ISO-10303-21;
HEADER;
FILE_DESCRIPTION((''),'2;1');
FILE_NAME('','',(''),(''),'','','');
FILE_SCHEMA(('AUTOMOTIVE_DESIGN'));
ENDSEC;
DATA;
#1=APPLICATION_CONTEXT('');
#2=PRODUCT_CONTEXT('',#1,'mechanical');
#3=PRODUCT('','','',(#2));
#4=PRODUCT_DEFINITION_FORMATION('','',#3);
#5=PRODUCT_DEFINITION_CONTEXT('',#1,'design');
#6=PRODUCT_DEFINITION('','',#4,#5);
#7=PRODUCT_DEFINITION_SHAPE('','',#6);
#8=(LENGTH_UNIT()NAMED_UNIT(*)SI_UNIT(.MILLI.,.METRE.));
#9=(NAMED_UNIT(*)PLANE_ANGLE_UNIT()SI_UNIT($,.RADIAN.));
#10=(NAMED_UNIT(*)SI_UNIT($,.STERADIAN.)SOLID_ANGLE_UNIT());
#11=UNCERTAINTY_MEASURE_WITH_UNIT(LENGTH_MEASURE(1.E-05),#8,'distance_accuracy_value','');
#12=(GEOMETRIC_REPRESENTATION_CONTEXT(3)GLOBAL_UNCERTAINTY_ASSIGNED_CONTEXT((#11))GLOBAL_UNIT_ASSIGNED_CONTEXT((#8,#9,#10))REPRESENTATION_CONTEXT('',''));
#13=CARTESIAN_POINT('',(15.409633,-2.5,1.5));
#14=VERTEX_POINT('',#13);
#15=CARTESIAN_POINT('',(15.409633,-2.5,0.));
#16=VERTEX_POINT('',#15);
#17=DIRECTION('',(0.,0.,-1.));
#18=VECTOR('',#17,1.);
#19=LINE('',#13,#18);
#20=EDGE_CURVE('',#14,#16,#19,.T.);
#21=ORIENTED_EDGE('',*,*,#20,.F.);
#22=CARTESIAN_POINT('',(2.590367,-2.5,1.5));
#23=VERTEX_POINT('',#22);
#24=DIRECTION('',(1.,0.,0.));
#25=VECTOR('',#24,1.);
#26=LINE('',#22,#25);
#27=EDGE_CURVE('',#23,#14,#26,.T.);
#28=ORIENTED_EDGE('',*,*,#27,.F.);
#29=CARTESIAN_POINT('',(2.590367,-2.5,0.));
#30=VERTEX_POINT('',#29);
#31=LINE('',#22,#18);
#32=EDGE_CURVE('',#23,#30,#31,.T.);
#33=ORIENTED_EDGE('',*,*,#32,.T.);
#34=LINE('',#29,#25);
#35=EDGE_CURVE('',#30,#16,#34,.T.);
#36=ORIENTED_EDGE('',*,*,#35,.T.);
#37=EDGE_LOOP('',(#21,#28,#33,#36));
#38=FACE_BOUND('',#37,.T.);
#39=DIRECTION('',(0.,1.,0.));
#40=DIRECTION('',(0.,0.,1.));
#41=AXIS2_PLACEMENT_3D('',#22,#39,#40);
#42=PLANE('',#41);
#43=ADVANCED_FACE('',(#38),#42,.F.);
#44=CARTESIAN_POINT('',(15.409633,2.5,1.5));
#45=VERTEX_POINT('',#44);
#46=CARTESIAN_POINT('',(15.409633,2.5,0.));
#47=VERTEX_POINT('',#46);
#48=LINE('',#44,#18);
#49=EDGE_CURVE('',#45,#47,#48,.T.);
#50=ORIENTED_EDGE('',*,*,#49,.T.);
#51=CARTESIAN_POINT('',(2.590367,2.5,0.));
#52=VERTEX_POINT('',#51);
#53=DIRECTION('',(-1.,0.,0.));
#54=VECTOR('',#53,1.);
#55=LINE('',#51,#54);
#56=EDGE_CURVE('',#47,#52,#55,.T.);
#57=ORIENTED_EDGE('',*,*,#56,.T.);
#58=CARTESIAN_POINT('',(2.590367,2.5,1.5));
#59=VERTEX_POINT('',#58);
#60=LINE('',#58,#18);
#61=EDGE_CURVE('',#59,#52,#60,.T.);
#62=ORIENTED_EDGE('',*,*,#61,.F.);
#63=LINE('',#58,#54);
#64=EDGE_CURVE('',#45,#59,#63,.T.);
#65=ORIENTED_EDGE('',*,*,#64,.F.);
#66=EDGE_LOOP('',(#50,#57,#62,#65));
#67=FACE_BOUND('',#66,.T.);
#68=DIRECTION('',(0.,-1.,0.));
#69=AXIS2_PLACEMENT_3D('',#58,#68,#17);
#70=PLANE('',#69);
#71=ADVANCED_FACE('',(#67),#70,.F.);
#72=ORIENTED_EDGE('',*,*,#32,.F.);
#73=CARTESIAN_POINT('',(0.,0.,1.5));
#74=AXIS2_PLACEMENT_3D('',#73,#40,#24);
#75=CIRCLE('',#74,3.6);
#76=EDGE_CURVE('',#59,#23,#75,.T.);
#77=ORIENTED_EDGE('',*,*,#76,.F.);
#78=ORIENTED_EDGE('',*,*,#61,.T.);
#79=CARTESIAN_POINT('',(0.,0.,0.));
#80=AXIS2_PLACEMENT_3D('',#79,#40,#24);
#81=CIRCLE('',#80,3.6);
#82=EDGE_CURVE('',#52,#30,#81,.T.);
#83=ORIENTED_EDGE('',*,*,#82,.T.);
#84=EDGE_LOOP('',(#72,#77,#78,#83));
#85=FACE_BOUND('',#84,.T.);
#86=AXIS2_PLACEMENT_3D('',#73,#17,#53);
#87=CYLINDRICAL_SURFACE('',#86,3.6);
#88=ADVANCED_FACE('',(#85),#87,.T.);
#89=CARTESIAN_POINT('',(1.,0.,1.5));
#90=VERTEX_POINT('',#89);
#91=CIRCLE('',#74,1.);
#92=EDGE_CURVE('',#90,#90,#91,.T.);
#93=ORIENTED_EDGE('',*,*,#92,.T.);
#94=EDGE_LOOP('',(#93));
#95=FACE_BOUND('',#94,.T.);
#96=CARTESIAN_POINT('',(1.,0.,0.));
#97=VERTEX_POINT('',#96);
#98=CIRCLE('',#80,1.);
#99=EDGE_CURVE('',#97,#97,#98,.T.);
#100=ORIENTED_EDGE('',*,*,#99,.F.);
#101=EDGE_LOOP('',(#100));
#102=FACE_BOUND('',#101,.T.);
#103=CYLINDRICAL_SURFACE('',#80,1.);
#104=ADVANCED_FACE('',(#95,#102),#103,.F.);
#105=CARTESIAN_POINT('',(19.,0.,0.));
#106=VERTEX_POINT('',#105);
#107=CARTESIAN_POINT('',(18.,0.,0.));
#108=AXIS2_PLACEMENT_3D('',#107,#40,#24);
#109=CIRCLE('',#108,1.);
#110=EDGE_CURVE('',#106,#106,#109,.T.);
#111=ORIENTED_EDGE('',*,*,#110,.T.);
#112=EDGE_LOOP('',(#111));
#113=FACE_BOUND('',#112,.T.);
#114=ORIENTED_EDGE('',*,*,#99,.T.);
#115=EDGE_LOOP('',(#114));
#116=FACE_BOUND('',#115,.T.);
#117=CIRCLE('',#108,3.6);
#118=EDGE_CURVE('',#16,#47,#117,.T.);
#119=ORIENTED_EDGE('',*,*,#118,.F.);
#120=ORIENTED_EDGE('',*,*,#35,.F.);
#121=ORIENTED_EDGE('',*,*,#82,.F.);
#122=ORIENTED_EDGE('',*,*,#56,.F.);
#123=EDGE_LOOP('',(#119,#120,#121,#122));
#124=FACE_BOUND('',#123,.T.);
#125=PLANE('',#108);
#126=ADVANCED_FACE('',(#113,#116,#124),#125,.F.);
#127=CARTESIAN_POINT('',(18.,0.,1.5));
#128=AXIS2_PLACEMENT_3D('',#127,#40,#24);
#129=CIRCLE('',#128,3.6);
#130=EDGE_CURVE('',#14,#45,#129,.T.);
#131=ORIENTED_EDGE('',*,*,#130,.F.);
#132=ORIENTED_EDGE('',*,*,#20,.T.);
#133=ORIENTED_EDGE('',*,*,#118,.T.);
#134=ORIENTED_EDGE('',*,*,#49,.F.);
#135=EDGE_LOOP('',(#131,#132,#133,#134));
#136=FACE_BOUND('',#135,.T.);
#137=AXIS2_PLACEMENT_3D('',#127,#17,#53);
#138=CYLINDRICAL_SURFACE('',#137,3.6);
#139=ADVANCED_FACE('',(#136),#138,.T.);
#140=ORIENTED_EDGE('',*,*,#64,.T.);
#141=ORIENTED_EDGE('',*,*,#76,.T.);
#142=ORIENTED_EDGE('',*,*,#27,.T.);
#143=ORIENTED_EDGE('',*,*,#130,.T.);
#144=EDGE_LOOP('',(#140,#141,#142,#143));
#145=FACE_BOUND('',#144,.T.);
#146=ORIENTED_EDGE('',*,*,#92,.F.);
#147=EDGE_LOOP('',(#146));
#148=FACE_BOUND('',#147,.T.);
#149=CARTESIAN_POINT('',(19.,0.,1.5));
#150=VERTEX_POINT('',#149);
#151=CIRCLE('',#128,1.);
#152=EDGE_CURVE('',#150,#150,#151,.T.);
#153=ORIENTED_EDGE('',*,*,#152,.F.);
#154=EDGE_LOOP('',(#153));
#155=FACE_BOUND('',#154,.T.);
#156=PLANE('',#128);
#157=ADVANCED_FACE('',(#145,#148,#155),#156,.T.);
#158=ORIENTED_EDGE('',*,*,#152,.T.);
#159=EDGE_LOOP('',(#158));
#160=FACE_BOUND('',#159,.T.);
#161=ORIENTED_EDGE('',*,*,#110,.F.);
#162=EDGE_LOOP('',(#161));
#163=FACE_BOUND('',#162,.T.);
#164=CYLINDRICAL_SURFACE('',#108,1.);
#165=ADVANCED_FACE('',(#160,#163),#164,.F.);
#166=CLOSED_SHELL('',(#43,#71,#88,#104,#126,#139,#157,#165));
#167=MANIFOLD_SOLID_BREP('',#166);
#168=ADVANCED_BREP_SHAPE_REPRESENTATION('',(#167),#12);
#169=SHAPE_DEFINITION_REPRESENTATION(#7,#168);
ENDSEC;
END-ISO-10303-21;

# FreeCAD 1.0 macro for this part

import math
import FreeCAD as App
import Part
import Sketcher

doc = App.newDocument("Part")
body = doc.addObject("PartDesign::Body", "Body")

# Sketch on XY plane
sketch1 = body.newObject("Sketcher::SketchObject", "Sketch")
sketch1.AttachmentSupport = (doc.getObject("XY_Plane"), [""])
sketch1.MapMode = "FlatFace"
sketch1.addGeometry(Part.LineSegment(App.Vector(2.6, -2.5, 0), App.Vector(15.4, -2.5, 0)), False)
sketch1.addGeometry(Part.ArcOfCircle(Part.Circle(App.Vector(18, 0, 0), App.Vector(0, 0, 1), 3.6), math.radians(-136), math.radians(136)), False)
sketch1.addGeometry(Part.LineSegment(App.Vector(15.4, 2.5, 0), App.Vector(2.6, 2.5, 0)), False)
sketch1.addGeometry(Part.ArcOfCircle(Part.Circle(App.Vector(0, 0, 0), App.Vector(0, 0, 1), 3.6), math.radians(44), math.radians(316)), False)
sketch1.addConstraint(Sketcher.Constraint("Coincident", 0, 2, 1, 1))
sketch1.addConstraint(Sketcher.Constraint("Coincident", 1, 2, 2, 1))
sketch1.addConstraint(Sketcher.Constraint("Coincident", 2, 2, 3, 1))
sketch1.addConstraint(Sketcher.Constraint("Coincident", 3, 2, 0, 1))
sketch1.addConstraint(Sketcher.Constraint("Horizontal", 0))
sketch1.addConstraint(Sketcher.Constraint("Horizontal", 2))
sketch1.addConstraint(Sketcher.Constraint("Coincident", 3, 3, -1, 1))
sketch1.addConstraint(Sketcher.Constraint("Equal", 1, 3))
sketch1.addConstraint(Sketcher.Constraint("Symmetric", 0, 2, 1, 2, -1))
sketch1.addConstraint(Sketcher.Constraint("Radius", 1, 3.6))
sketch1.addConstraint(Sketcher.Constraint("DistanceX", -1, 1, 1, 3, 18.0))
sketch1.addConstraint(Sketcher.Constraint("DistanceY", 0, 2, 1, 2, 5.0))
pad1 = body.newObject("PartDesign::Pad", "Pad")
pad1.Profile = sketch1
pad1.Length = 1.5

# Sketch on XY plane
sketch2 = body.newObject("Sketcher::SketchObject", "Sketch001")
sketch2.AttachmentSupport = (doc.getObject("XY_Plane"), [""])
sketch2.MapMode = "FlatFace"
sketch2.AttachmentOffset = App.Placement(App.Vector(0, 0, 1.5), App.Rotation())
sketch2.addGeometry(Part.Circle(App.Vector(0, 0, 0), App.Vector(0, 0, 1), 1), False)
sketch2.addGeometry(Part.Circle(App.Vector(18, 0, 0), App.Vector(0, 0, 1), 1), False)
sketch2.addConstraint(Sketcher.Constraint("Coincident", 0, 3, -1, 1))
sketch2.addConstraint(Sketcher.Constraint("Equal", 0, 1))
sketch2.addConstraint(Sketcher.Constraint("PointOnObject", 1, 3, -1))
sketch2.addConstraint(Sketcher.Constraint("Diameter", 0, 2.0))
sketch2.addConstraint(Sketcher.Constraint("DistanceX", -1, 1, 1, 3, 18.0))
pocket1 = body.newObject("PartDesign::Pocket", "Pocket")
pocket1.Profile = sketch2
pocket1.Length = 1.5

doc.recompute()
